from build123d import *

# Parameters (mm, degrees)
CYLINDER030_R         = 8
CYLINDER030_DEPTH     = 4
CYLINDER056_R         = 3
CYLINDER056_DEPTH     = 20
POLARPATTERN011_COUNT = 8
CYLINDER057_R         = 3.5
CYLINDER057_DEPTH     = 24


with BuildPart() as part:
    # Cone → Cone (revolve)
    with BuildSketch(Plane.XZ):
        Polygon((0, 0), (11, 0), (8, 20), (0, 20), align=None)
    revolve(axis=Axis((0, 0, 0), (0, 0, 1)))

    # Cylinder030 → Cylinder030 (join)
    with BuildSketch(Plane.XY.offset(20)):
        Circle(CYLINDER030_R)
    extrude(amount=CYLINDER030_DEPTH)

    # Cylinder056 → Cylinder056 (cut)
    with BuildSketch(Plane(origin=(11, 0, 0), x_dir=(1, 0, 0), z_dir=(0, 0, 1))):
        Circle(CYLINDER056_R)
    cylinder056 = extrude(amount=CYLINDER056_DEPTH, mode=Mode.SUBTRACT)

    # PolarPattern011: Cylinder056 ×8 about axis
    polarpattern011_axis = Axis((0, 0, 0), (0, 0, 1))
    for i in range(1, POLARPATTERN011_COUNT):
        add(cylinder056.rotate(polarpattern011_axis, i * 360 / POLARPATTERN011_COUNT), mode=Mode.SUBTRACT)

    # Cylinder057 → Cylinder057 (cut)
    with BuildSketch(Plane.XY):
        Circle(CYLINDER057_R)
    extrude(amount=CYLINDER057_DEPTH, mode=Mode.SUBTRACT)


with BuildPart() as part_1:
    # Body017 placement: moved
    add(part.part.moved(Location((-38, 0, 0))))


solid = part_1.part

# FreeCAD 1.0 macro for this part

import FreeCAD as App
import Part
import Sketcher

doc = App.newDocument("Part")
body = doc.addObject("PartDesign::Body", "Body")

# Sketch on XZ plane
sketch1 = body.newObject("Sketcher::SketchObject", "Sketch")
sketch1.AttachmentSupport = (doc.getObject("XZ_Plane"), [""])
sketch1.MapMode = "FlatFace"
sketch1.addGeometry(Part.LineSegment(App.Vector(0, 0, 0), App.Vector(11, 0, 0)), False)
sketch1.addGeometry(Part.LineSegment(App.Vector(11, 0, 0), App.Vector(8, 20, 0)), False)
sketch1.addGeometry(Part.LineSegment(App.Vector(8, 20, 0), App.Vector(0, 20, 0)), False)
sketch1.addGeometry(Part.LineSegment(App.Vector(0, 20, 0), App.Vector(0, 0, 0)), False)
sketch1.addConstraint(Sketcher.Constraint("Coincident", 0, 2, 1, 1))
sketch1.addConstraint(Sketcher.Constraint("Coincident", 1, 2, 2, 1))
sketch1.addConstraint(Sketcher.Constraint("Coincident", 2, 2, 3, 1))
sketch1.addConstraint(Sketcher.Constraint("Coincident", 3, 2, 0, 1))
sketch1.addConstraint(Sketcher.Constraint("Horizontal", 0))
sketch1.addConstraint(Sketcher.Constraint("Horizontal", 2))
sketch1.addConstraint(Sketcher.Constraint("Vertical", 3))
sketch1.addConstraint(Sketcher.Constraint("Coincident", 3, 2, -1, 1))
sketch1.addConstraint(Sketcher.Constraint("DistanceX", 0, 1, 0, 2, 11.0))
sketch1.addConstraint(Sketcher.Constraint("DistanceX", 2, 2, 2, 1, 8.0))
sketch1.addConstraint(Sketcher.Constraint("DistanceY", 3, 2, 3, 1, 20.0))
revolution = body.newObject("PartDesign::Revolution", "Revolution")
revolution.Profile = sketch1
revolution.ReferenceAxis = (sketch1, ["V_Axis"])
revolution.Angle = 360

# Sketch on XY plane
sketch2 = body.newObject("Sketcher::SketchObject", "Sketch001")
sketch2.AttachmentSupport = (doc.getObject("XY_Plane"), [""])
sketch2.MapMode = "FlatFace"
sketch2.AttachmentOffset = App.Placement(App.Vector(0, 0, 20), App.Rotation())
sketch2.addGeometry(Part.Circle(App.Vector(0, 0, 0), App.Vector(0, 0, 1), 8), False)
sketch2.addConstraint(Sketcher.Constraint("Coincident", 0, 3, -1, 1))
sketch2.addConstraint(Sketcher.Constraint("Diameter", 0, 16.0))
pad1 = body.newObject("PartDesign::Pad", "Pad")
pad1.Profile = sketch2
pad1.Length = 4

# Sketch on XY plane
sketch3 = body.newObject("Sketcher::SketchObject", "Sketch002")
sketch3.AttachmentSupport = (doc.getObject("XY_Plane"), [""])
sketch3.MapMode = "FlatFace"
sketch3.addGeometry(Part.Circle(App.Vector(11, 0, 0), App.Vector(0, 0, 1), 3), False)
sketch3.addConstraint(Sketcher.Constraint("PointOnObject", 0, 3, -1))
sketch3.addConstraint(Sketcher.Constraint("Diameter", 0, 6.0))
sketch3.addConstraint(Sketcher.Constraint("DistanceX", -1, 1, 0, 3, 11.0))
pocket1 = body.newObject("PartDesign::Pocket", "Pocket")
pocket1.Profile = sketch3
pocket1.Length = 20
pocket1.Reversed = True
doc.recompute()

polarpattern = body.newObject("PartDesign::PolarPattern", "PolarPattern")
polarpattern.Originals = [pocket1]
polarpattern.Axis = (doc.getObject("Z_Axis"), [""])
polarpattern.Angle = 360
polarpattern.Occurrences = 8
body.Tip = polarpattern

# Sketch on XY plane
sketch4 = body.newObject("Sketcher::SketchObject", "Sketch003")
sketch4.AttachmentSupport = (doc.getObject("XY_Plane"), [""])
sketch4.MapMode = "FlatFace"
sketch4.addGeometry(Part.Circle(App.Vector(0, 0, 0), App.Vector(0, 0, 1), 3.5), False)
sketch4.addConstraint(Sketcher.Constraint("Coincident", 0, 3, -1, 1))
sketch4.addConstraint(Sketcher.Constraint("Diameter", 0, 7.0))
pocket2 = body.newObject("PartDesign::Pocket", "Pocket001")
pocket2.Profile = sketch4
pocket2.Length = 24
pocket2.Reversed = True
body2 = doc.addObject("PartDesign::Body", "Body001")
doc.recompute()

body.Placement = App.Placement(App.Vector(-38, 0, 0), App.Rotation(App.Vector(0, 0, 1), 0))
boolean = body2.newObject("PartDesign::Boolean", "Boolean")
boolean.Type = "Fuse"
boolean.addObjects([body])

doc.recompute()
